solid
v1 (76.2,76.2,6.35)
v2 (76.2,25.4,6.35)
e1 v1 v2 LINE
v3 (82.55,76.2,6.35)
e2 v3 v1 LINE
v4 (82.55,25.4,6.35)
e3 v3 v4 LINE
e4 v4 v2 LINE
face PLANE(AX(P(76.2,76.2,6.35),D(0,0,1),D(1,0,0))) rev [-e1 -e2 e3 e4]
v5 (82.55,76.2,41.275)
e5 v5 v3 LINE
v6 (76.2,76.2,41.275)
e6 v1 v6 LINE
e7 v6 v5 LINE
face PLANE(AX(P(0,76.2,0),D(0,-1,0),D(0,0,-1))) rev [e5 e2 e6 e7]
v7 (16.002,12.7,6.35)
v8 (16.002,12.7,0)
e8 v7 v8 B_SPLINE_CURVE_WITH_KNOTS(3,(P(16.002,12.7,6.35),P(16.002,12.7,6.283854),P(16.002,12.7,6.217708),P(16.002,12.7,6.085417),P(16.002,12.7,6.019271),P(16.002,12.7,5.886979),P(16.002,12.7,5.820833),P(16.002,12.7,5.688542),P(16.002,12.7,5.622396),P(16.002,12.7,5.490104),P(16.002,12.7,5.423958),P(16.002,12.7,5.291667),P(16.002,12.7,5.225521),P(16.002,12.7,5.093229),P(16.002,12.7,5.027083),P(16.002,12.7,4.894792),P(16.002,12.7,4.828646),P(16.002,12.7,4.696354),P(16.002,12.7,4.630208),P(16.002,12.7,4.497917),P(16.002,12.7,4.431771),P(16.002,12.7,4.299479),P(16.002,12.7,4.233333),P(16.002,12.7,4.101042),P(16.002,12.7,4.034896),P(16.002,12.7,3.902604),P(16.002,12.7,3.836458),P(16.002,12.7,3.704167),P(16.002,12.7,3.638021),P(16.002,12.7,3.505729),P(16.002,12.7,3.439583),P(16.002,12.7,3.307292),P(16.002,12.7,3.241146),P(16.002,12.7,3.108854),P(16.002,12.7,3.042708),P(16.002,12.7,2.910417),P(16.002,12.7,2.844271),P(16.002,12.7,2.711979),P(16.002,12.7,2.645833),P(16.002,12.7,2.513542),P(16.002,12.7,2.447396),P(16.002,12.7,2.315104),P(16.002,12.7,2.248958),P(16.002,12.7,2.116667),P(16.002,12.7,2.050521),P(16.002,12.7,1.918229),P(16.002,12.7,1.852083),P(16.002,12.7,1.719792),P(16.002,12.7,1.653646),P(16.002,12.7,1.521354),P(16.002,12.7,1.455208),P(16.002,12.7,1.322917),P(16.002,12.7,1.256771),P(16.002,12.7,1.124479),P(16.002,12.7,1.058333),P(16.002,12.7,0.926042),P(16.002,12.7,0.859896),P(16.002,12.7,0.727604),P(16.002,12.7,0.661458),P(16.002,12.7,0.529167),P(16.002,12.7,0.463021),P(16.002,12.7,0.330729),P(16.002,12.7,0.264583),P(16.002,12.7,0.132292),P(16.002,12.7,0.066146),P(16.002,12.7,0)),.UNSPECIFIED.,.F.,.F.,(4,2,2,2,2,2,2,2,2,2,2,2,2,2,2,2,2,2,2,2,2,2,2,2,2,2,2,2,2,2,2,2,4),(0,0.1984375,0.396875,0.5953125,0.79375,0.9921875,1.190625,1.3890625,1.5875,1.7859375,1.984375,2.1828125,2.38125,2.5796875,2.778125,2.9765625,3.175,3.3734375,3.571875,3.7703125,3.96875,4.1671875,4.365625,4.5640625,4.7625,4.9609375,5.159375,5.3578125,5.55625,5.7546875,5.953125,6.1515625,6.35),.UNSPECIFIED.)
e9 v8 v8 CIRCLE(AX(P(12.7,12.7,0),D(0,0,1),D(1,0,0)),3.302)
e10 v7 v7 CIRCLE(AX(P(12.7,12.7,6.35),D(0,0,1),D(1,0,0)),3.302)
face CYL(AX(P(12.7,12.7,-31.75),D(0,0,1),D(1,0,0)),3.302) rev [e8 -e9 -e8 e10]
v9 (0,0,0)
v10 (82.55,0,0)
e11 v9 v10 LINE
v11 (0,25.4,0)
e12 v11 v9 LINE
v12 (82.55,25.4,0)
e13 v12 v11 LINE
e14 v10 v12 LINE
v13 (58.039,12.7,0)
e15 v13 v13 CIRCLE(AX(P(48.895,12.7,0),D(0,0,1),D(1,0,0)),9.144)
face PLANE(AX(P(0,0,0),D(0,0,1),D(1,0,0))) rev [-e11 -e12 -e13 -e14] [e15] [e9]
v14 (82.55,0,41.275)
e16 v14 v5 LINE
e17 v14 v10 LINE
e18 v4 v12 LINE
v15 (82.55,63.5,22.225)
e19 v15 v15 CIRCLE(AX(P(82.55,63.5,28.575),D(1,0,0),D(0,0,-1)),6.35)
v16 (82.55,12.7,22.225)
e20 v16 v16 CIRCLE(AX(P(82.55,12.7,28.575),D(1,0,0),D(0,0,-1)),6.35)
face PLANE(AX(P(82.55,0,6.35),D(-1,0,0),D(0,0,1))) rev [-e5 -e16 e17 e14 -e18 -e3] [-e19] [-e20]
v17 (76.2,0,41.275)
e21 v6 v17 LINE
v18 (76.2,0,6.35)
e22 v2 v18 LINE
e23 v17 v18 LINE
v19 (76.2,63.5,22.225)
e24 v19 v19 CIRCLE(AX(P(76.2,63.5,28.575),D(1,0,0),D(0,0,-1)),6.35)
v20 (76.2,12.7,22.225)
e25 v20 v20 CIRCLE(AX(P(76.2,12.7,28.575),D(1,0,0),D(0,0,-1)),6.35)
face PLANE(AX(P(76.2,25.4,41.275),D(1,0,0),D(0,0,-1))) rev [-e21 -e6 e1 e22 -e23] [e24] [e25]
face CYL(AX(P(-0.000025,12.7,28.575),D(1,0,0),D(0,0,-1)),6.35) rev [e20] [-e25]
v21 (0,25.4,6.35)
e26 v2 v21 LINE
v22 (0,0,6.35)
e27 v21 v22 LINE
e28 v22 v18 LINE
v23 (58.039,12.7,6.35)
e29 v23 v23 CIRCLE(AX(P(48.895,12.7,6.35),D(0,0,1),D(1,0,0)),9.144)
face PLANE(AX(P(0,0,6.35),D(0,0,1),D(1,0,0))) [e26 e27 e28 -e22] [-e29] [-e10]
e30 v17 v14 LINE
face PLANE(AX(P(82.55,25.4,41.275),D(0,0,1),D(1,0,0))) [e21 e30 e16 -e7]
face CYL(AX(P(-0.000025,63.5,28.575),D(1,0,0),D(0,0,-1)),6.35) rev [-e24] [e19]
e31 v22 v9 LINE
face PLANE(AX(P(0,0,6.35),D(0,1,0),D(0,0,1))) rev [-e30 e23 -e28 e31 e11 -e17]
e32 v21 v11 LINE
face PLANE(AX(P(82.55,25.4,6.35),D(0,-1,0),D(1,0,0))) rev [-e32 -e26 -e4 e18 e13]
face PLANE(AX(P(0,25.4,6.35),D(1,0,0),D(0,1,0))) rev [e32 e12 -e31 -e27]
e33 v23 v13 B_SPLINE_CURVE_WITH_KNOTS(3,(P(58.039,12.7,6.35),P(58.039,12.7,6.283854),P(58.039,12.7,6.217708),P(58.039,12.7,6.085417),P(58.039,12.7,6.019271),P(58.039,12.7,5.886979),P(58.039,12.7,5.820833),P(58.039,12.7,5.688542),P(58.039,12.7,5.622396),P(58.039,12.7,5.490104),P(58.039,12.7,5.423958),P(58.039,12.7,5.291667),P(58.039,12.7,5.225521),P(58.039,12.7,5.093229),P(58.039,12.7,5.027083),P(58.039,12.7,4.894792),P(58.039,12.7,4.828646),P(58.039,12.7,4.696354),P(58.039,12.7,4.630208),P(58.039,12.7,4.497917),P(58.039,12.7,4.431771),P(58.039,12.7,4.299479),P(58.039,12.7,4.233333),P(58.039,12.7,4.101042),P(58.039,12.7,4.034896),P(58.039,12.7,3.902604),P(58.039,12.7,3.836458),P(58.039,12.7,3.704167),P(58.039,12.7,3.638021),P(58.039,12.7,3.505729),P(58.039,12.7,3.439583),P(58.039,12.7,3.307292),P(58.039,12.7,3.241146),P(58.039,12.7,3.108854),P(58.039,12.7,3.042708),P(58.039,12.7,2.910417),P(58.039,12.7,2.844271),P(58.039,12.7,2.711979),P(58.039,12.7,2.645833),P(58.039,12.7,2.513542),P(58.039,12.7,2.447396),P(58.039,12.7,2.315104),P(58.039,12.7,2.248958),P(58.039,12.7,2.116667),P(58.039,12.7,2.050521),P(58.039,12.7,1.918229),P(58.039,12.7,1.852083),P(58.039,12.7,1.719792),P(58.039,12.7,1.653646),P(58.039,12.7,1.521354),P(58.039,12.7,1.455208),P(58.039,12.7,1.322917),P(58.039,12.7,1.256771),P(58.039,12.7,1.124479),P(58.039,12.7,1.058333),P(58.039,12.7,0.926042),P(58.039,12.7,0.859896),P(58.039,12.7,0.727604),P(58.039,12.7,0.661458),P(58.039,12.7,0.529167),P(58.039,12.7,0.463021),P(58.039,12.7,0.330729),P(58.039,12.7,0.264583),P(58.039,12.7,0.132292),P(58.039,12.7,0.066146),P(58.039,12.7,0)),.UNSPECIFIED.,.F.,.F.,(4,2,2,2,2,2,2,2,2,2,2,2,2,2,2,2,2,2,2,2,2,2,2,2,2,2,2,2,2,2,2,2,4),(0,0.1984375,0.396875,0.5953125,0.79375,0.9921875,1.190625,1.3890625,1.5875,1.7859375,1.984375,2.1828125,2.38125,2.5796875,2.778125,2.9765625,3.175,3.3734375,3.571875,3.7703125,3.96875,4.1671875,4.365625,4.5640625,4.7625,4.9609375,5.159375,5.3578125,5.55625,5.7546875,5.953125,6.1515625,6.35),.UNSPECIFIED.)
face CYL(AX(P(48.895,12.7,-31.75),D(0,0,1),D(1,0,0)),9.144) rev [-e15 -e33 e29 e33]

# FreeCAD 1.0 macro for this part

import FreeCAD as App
import Part
import Sketcher
from FreeCAD import Vector
Q = App.Units.Quantity


def add_polygon(sketch, points):
    """Adds a closed chain of lines whose ends are joined by coincident constraints."""
    first, n = sketch.GeometryCount, len(points)
    for a, b in zip(points, points[1:] + points[:1]):
        sketch.addGeometry(Part.LineSegment(App.Vector(*a, 0), App.Vector(*b, 0)), False)
    for i in range(n):
        sketch.addConstraint(Sketcher.Constraint("Coincident", first + i, 2, first + (i + 1) % n, 1))

doc = App.newDocument("Part")
params = doc.addObject("Spreadsheet::Sheet", "Params")
for row, (alias, value) in enumerate([
    ("sketch1_height", "1 in"),
    ("sketch1_width", "3.25 in"),
    ("pad1_length", "0.25 in"),
    ("sketch2_height", "1 in"),
    ("sketch2_width", "0.25 in"),
    ("pad2_length", "1.375 in"),
    ("sketch3_diameter", "0.5 in"),
    ("sketch4_diameter", "0.26 in"),
    ("sketch4_diameter2", "0.72 in"),
    ("pocket2_length", "1.5 in"),
    ("sketch5_width", "0.25 in"),
    ("sketch5_height", "1.375 in"),
    ("pad3_length", "2 in"),
    ("sketch6_diameter", "0.5 in"),
], start=1):
    params.set(f"A{row}", alias)
    params.set(f"B{row}", "=" + value)
    params.setAlias(f"B{row}", alias)

body = doc.addObject("PartDesign::Body", "Body")

# Sketch on XY plane
sketch1 = body.newObject("Sketcher::SketchObject", "Sketch")
sketch1.AttachmentSupport = (doc.getObject("XY_Plane"), [""])
sketch1.MapMode = "FlatFace"
add_polygon(sketch1, [(0, 25), (0, 0), (83, 0), (83, 25)])  # lines 0-3
sketch1.addConstraint(Sketcher.Constraint("Vertical", 0))
sketch1.addConstraint(Sketcher.Constraint("Horizontal", 1))
sketch1.addConstraint(Sketcher.Constraint("Vertical", 2))
sketch1.addConstraint(Sketcher.Constraint("Horizontal", 3))
sketch1.addConstraint(Sketcher.Constraint("Coincident", 0, 2, -1, 1))
sketch1.addConstraint(Sketcher.Constraint("DistanceY", 0, 2, 0, 1, Q("1 in")))
sketch1.addConstraint(Sketcher.Constraint("DistanceX", 1, 1, 1, 2, Q("3.25 in")))
sketch1.setExpression("Constraints[9]", "Params.sketch1_height")
sketch1.setExpression("Constraints[10]", "Params.sketch1_width")
pad1 = body.newObject("PartDesign::Pad", "Pad")
pad1.Profile = sketch1
pad1.setExpression("Length", "Params.pad1_length")

# Sketch on XY plane
sketch2 = body.newObject("Sketcher::SketchObject", "Sketch001")
sketch2.AttachmentSupport = (doc.getObject("XY_Plane"), [""])
sketch2.MapMode = "FlatFace"
sketch2.AttachmentOffset = App.Placement(Vector(0, 0, 0.25 * 25.4), App.Rotation())
add_polygon(sketch2, [(76, 25), (76, 0), (83, 0), (83, 25)])  # lines 0-3
sketch2.addConstraint(Sketcher.Constraint("Vertical", 0))
sketch2.addConstraint(Sketcher.Constraint("Horizontal", 1))
sketch2.addConstraint(Sketcher.Constraint("Vertical", 2))
sketch2.addConstraint(Sketcher.Constraint("Horizontal", 3))
sketch2.addConstraint(Sketcher.Constraint("PointOnObject", 0, 2, -1))
sketch2.addConstraint(Sketcher.Constraint("DistanceY", 0, 2, 0, 1, Q("1 in")))
sketch2.addConstraint(Sketcher.Constraint("DistanceX", -1, 1, 0, 2, Q("3 in")))
sketch2.addConstraint(Sketcher.Constraint("DistanceX", 1, 1, 1, 2, Q("0.25 in")))
sketch2.setExpression("Constraints[9]", "Params.sketch2_height")
sketch2.setExpression("Constraints[11]", "Params.sketch2_width")
pad2 = body.newObject("PartDesign::Pad", "Pad001")
pad2.Profile = sketch2
pad2.setExpression("Length", "Params.pad2_length")

# Sketch on YZ plane
sketch3 = body.newObject("Sketcher::SketchObject", "Sketch002")
sketch3.AttachmentSupport = (doc.getObject("YZ_Plane"), [""])
sketch3.MapMode = "FlatFace"
sketch3.AttachmentOffset = App.Placement(Vector(0, 0, 3.25 * 25.4), App.Rotation())
sketch3.addGeometry(Part.Circle(Vector(13, 29, 0), Vector(0, 0, 1), 6), False)
sketch3.addConstraint(Sketcher.Constraint("Diameter", 0, Q("0.5 in")))
sketch3.addConstraint(Sketcher.Constraint("DistanceX", -1, 1, 0, 3, Q("0.5 in")))
sketch3.addConstraint(Sketcher.Constraint("DistanceY", -1, 1, 0, 3, Q("1.125 in")))
sketch3.setExpression("Constraints[0]", "Params.sketch3_diameter")
pocket1 = body.newObject("PartDesign::Pocket", "Pocket")
pocket1.Profile = sketch3
pocket1.Type = "ThroughAll"

# Sketch on XY plane
sketch4 = body.newObject("Sketcher::SketchObject", "Sketch003")
sketch4.AttachmentSupport = (doc.getObject("XY_Plane"), [""])
sketch4.MapMode = "FlatFace"
sketch4.AttachmentOffset = App.Placement(Vector(0, 0, 0.25 * 25.4), App.Rotation())
sketch4.addGeometry(Part.Circle(Vector(12.7, 12.7, 0), Vector(0, 0, 1), 3.3), False)
sketch4.addGeometry(Part.Circle(Vector(48.9, 12.7, 0), Vector(0, 0, 1), 9.1), False)
sketch4.addConstraint(Sketcher.Constraint("Horizontal", 0, 3, 1, 3))
sketch4.addConstraint(Sketcher.Constraint("Diameter", 0, Q("0.26 in")))
sketch4.addConstraint(Sketcher.Constraint("Diameter", 1, Q("0.72 in")))
sketch4.addConstraint(Sketcher.Constraint("DistanceX", -1, 1, 0, 3, Q("0.5 in")))
sketch4.addConstraint(Sketcher.Constraint("DistanceY", -1, 1, 0, 3, Q("0.5 in")))
sketch4.addConstraint(Sketcher.Constraint("DistanceX", -1, 1, 1, 3, Q("1.925 in")))
sketch4.setExpression("Constraints[1]", "Params.sketch4_diameter")
sketch4.setExpression("Constraints[2]", "Params.sketch4_diameter2")
pocket2 = body.newObject("PartDesign::Pocket", "Pocket001")
pocket2.Profile = sketch4
pocket2.setExpression("Length", "Params.pocket2_length")

# Sketch on XZ plane
sketch5 = body.newObject("Sketcher::SketchObject", "Sketch004")
sketch5.AttachmentSupport = (doc.getObject("XZ_Plane"), [""])
sketch5.MapMode = "FlatFace"
sketch5.AttachmentOffset = App.Placement(Vector(0, 0, -1 * 25.4), App.Rotation())
add_polygon(sketch5, [(76, 6), (76, 41), (83, 41), (83, 6)])  # lines 0-3
sketch5.addConstraint(Sketcher.Constraint("Vertical", 0))
sketch5.addConstraint(Sketcher.Constraint("Horizontal", 1))
sketch5.addConstraint(Sketcher.Constraint("Vertical", 2))
sketch5.addConstraint(Sketcher.Constraint("Horizontal", 3))
sketch5.addConstraint(Sketcher.Constraint("DistanceX", -1, 1, 0, 2, Q("3 in")))
sketch5.addConstraint(Sketcher.Constraint("DistanceX", 1, 1, 1, 2, Q("0.25 in")))
sketch5.addConstraint(Sketcher.Constraint("DistanceY", 0, 1, 0, 2, Q("1.375 in")))
sketch5.addConstraint(Sketcher.Constraint("DistanceY", -1, 1, 2, 2, Q("0.25 in")))
sketch5.setExpression("Constraints[9]", "Params.sketch5_width")
sketch5.setExpression("Constraints[10]", "Params.sketch5_height")
pad3 = body.newObject("PartDesign::Pad", "Pad002")
pad3.Profile = sketch5
pad3.setExpression("Length", "Params.pad3_length")
pad3.Reversed = True

# Sketch on YZ plane
sketch6 = body.newObject("Sketcher::SketchObject", "Sketch005")
sketch6.AttachmentSupport = (doc.getObject("YZ_Plane"), [""])
sketch6.MapMode = "FlatFace"
sketch6.AttachmentOffset = App.Placement(Vector(0, 0, 3.25 * 25.4), App.Rotation())
sketch6.addGeometry(Part.Circle(Vector(64, 29, 0), Vector(0, 0, 1), 6), False)
sketch6.addConstraint(Sketcher.Constraint("Diameter", 0, Q("0.5 in")))
sketch6.addConstraint(Sketcher.Constraint("DistanceX", -1, 1, 0, 3, Q("2.5 in")))
sketch6.addConstraint(Sketcher.Constraint("DistanceY", -1, 1, 0, 3, Q("1.125 in")))
sketch6.setExpression("Constraints[0]", "Params.sketch6_diameter")
pocket3 = body.newObject("PartDesign::Pocket", "Pocket002")
pocket3.Profile = sketch6
pocket3.Type = "ThroughAll"

doc.recompute()
